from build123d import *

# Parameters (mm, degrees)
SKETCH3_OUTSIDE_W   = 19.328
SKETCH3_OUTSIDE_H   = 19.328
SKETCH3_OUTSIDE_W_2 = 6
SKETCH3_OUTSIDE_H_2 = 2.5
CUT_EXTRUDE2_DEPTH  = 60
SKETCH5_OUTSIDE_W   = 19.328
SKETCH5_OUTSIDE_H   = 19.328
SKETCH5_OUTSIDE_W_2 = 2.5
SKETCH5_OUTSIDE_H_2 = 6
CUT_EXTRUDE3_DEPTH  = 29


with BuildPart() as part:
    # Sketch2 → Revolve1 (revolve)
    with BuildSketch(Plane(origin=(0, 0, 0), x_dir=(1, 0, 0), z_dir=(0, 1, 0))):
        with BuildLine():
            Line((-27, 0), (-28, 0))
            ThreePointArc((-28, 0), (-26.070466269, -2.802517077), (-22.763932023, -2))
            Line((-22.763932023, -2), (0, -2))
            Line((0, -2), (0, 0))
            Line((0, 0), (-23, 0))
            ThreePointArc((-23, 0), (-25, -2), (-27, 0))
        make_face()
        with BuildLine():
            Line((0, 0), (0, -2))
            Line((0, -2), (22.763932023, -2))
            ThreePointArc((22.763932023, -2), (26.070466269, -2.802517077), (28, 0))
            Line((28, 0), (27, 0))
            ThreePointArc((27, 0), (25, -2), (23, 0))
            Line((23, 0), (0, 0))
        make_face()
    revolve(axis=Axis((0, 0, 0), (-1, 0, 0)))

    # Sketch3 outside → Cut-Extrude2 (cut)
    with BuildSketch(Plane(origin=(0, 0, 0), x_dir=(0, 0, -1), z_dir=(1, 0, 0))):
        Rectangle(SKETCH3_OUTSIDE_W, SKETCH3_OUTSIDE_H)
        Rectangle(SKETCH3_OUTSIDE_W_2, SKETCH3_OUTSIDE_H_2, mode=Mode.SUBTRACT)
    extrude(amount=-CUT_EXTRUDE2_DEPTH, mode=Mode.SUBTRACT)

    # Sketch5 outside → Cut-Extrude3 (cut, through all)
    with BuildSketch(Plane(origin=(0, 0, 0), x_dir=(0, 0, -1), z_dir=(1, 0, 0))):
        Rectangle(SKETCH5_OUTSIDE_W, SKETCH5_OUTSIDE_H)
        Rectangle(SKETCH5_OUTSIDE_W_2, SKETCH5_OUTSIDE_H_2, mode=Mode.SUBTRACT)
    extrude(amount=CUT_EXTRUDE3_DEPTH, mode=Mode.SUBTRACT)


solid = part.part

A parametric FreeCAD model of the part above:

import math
import FreeCAD as App
import Part
import Sketcher
Q = App.Units.Quantity


def add_polygon(sketch, points):
    """Adds a closed chain of lines whose ends are joined by coincident constraints."""
    first, n = sketch.GeometryCount, len(points)
    for a, b in zip(points, points[1:] + points[:1]):
        sketch.addGeometry(Part.LineSegment(App.Vector(*a, 0), App.Vector(*b, 0)), False)
    for i in range(n):
        sketch.addConstraint(Sketcher.Constraint("Coincident", first + i, 2, first + (i + 1) % n, 1))

doc = App.newDocument("Part")
body = doc.addObject("PartDesign::Body", "Body")

# Sketch on XZ plane
sketch1 = doc.addObject("Sketcher::SketchObject", "Sketch")
body.addObject(sketch1)
sketch1.AttachmentSupport = (doc.XZ_Plane, [""])
sketch1.MapMode = "FlatFace"
sketch1.addGeometry([
    Part.LineSegment(App.Vector(-27, 0, 0), App.Vector(-28, 0, 0)),  # 0
    Part.ArcOfCircle(Part.Circle(App.Vector(-25, 0, 0), App.Vector(0, 0, 1), 3), math.radians(41.810315), math.radians(180)),  # 1
    Part.LineSegment(App.Vector(-22.763932, 2, 0), App.Vector(22.763932, 2, 0)),  # 2
    Part.ArcOfCircle(Part.Circle(App.Vector(25, 0, 0), App.Vector(0, 0, 1), 3), math.radians(0), math.radians(138.189685)),  # 3
    Part.LineSegment(App.Vector(28, 0, 0), App.Vector(27, 0, 0)),  # 4
    Part.ArcOfCircle(Part.Circle(App.Vector(25, 0, 0), App.Vector(0, 0, 1), 2), math.radians(0), math.radians(180)),  # 5
    Part.LineSegment(App.Vector(23, 0, 0), App.Vector(-23, 0, 0)),  # 6
    Part.ArcOfCircle(Part.Circle(App.Vector(-25, 0, 0), App.Vector(0, 0, 1), 2), math.radians(0), math.radians(180)),  # 7
], False)
sketch1.addConstraint([
    Sketcher.Constraint("Coincident", 0, 2, 1, 2),
    Sketcher.Constraint("Coincident", 1, 1, 2, 1),
    Sketcher.Constraint("Coincident", 2, 2, 3, 2),
    Sketcher.Constraint("Coincident", 3, 1, 4, 1),
    Sketcher.Constraint("Coincident", 4, 2, 5, 1),
    Sketcher.Constraint("Coincident", 5, 2, 6, 1),
    Sketcher.Constraint("Coincident", 6, 2, 7, 1),
    Sketcher.Constraint("Coincident", 7, 2, 0, 1),
    Sketcher.Constraint("Horizontal", 0),
    Sketcher.Constraint("Horizontal", 2),
    Sketcher.Constraint("Horizontal", 4),
    Sketcher.Constraint("Horizontal", 6),
    Sketcher.Constraint("Coincident", 5, 3, 3, 3),
    Sketcher.Constraint("Coincident", 7, 3, 1, 3),
    Sketcher.Constraint("Equal", 1, 3),
    Sketcher.Constraint("Equal", 5, 7),
    Sketcher.Constraint("Symmetric", 1, 3, 3, 3, -1, 1),
    Sketcher.Constraint("PointOnObject", 1, 3, -1),
    Sketcher.Constraint("PointOnObject", 0, 2, -1),
    Sketcher.Constraint("PointOnObject", 3, 1, -1),
    Sketcher.Constraint("PointOnObject", 5, 2, -1),
    Sketcher.Constraint("Radius", 1, Q("3 mm")),
    Sketcher.Constraint("Radius", 5, Q("2 mm")),
    Sketcher.Constraint("DistanceX", 6, 2, 6, 1, Q("46 mm")),
    Sketcher.Constraint("DistanceY", -1, 1, 1, 1, Q("2 mm")),
])
revolution = doc.addObject("PartDesign::Revolution", "Revolution")
body.addObject(revolution)
revolution.Profile = sketch1
revolution.ReferenceAxis = (sketch1, ["H_Axis"])
revolution.Angle = 360

# Sketch on YZ plane
sketch2 = doc.addObject("Sketcher::SketchObject", "Sketch001")
body.addObject(sketch2)
sketch2.AttachmentSupport = (doc.YZ_Plane, [""])
sketch2.MapMode = "FlatFace"
add_polygon(sketch2, [(9.664, 9.664), (-9.664, 9.664), (-9.664, -9.664), (9.664, -9.664)])  # lines 0-3
add_polygon(sketch2, [(-1.25, -3), (-1.25, 3), (1.25, 3), (1.25, -3)])  # lines 4-7
sketch2.addConstraint([
    Sketcher.Constraint("Horizontal", 0),
    Sketcher.Constraint("Vertical", 1),
    Sketcher.Constraint("Horizontal", 2),
    Sketcher.Constraint("Vertical", 3),
    Sketcher.Constraint("Vertical", 4),
    Sketcher.Constraint("Horizontal", 5),
    Sketcher.Constraint("Vertical", 6),
    Sketcher.Constraint("Horizontal", 7),
    Sketcher.Constraint("Symmetric", 0, 2, 2, 2, -1, 1),
    Sketcher.Constraint("Symmetric", 4, 2, 6, 2, -1, 1),
    Sketcher.Constraint("Equal", 2, 1),
    Sketcher.Constraint("DistanceY", 4, 1, 4, 2, Q("6 mm")),
    Sketcher.Constraint("DistanceX", 5, 1, 5, 2, Q("2.5 mm")),
    Sketcher.Constraint("DistanceX", 0, 2, 0, 1, Q("19.328 mm")),
])
pocket1 = doc.addObject("PartDesign::Pocket", "Pocket")
body.addObject(pocket1)
pocket1.Profile = sketch2
pocket1.Length = 60

# Sketch on YZ plane
sketch3 = doc.addObject("Sketcher::SketchObject", "Sketch002")
body.addObject(sketch3)
sketch3.AttachmentSupport = (doc.YZ_Plane, [""])
sketch3.MapMode = "FlatFace"
add_polygon(sketch3, [(9.664, 9.664), (-9.664, 9.664), (-9.664, -9.664), (9.664, -9.664)])  # lines 0-3
add_polygon(sketch3, [(-3, -1.25), (-3, 1.25), (3, 1.25), (3, -1.25)])  # lines 4-7
sketch3.addConstraint([
    Sketcher.Constraint("Horizontal", 0),
    Sketcher.Constraint("Vertical", 1),
    Sketcher.Constraint("Horizontal", 2),
    Sketcher.Constraint("Vertical", 3),
    Sketcher.Constraint("Vertical", 4),
    Sketcher.Constraint("Horizontal", 5),
    Sketcher.Constraint("Vertical", 6),
    Sketcher.Constraint("Horizontal", 7),
    Sketcher.Constraint("Symmetric", 0, 2, 2, 2, -1, 1),
    Sketcher.Constraint("Symmetric", 4, 2, 6, 2, -1, 1),
    Sketcher.Constraint("Equal", 2, 1),
    Sketcher.Constraint("DistanceX", 5, 1, 5, 2, Q("6 mm")),
    Sketcher.Constraint("DistanceY", 4, 1, 4, 2, Q("2.5 mm")),
    Sketcher.Constraint("DistanceX", 0, 2, 0, 1, Q("19.328 mm")),
])
pocket2 = doc.addObject("PartDesign::Pocket", "Pocket001")
body.addObject(pocket2)
pocket2.Profile = sketch3
pocket2.Type = "ThroughAll"
pocket2.Reversed = True

doc.recompute()
